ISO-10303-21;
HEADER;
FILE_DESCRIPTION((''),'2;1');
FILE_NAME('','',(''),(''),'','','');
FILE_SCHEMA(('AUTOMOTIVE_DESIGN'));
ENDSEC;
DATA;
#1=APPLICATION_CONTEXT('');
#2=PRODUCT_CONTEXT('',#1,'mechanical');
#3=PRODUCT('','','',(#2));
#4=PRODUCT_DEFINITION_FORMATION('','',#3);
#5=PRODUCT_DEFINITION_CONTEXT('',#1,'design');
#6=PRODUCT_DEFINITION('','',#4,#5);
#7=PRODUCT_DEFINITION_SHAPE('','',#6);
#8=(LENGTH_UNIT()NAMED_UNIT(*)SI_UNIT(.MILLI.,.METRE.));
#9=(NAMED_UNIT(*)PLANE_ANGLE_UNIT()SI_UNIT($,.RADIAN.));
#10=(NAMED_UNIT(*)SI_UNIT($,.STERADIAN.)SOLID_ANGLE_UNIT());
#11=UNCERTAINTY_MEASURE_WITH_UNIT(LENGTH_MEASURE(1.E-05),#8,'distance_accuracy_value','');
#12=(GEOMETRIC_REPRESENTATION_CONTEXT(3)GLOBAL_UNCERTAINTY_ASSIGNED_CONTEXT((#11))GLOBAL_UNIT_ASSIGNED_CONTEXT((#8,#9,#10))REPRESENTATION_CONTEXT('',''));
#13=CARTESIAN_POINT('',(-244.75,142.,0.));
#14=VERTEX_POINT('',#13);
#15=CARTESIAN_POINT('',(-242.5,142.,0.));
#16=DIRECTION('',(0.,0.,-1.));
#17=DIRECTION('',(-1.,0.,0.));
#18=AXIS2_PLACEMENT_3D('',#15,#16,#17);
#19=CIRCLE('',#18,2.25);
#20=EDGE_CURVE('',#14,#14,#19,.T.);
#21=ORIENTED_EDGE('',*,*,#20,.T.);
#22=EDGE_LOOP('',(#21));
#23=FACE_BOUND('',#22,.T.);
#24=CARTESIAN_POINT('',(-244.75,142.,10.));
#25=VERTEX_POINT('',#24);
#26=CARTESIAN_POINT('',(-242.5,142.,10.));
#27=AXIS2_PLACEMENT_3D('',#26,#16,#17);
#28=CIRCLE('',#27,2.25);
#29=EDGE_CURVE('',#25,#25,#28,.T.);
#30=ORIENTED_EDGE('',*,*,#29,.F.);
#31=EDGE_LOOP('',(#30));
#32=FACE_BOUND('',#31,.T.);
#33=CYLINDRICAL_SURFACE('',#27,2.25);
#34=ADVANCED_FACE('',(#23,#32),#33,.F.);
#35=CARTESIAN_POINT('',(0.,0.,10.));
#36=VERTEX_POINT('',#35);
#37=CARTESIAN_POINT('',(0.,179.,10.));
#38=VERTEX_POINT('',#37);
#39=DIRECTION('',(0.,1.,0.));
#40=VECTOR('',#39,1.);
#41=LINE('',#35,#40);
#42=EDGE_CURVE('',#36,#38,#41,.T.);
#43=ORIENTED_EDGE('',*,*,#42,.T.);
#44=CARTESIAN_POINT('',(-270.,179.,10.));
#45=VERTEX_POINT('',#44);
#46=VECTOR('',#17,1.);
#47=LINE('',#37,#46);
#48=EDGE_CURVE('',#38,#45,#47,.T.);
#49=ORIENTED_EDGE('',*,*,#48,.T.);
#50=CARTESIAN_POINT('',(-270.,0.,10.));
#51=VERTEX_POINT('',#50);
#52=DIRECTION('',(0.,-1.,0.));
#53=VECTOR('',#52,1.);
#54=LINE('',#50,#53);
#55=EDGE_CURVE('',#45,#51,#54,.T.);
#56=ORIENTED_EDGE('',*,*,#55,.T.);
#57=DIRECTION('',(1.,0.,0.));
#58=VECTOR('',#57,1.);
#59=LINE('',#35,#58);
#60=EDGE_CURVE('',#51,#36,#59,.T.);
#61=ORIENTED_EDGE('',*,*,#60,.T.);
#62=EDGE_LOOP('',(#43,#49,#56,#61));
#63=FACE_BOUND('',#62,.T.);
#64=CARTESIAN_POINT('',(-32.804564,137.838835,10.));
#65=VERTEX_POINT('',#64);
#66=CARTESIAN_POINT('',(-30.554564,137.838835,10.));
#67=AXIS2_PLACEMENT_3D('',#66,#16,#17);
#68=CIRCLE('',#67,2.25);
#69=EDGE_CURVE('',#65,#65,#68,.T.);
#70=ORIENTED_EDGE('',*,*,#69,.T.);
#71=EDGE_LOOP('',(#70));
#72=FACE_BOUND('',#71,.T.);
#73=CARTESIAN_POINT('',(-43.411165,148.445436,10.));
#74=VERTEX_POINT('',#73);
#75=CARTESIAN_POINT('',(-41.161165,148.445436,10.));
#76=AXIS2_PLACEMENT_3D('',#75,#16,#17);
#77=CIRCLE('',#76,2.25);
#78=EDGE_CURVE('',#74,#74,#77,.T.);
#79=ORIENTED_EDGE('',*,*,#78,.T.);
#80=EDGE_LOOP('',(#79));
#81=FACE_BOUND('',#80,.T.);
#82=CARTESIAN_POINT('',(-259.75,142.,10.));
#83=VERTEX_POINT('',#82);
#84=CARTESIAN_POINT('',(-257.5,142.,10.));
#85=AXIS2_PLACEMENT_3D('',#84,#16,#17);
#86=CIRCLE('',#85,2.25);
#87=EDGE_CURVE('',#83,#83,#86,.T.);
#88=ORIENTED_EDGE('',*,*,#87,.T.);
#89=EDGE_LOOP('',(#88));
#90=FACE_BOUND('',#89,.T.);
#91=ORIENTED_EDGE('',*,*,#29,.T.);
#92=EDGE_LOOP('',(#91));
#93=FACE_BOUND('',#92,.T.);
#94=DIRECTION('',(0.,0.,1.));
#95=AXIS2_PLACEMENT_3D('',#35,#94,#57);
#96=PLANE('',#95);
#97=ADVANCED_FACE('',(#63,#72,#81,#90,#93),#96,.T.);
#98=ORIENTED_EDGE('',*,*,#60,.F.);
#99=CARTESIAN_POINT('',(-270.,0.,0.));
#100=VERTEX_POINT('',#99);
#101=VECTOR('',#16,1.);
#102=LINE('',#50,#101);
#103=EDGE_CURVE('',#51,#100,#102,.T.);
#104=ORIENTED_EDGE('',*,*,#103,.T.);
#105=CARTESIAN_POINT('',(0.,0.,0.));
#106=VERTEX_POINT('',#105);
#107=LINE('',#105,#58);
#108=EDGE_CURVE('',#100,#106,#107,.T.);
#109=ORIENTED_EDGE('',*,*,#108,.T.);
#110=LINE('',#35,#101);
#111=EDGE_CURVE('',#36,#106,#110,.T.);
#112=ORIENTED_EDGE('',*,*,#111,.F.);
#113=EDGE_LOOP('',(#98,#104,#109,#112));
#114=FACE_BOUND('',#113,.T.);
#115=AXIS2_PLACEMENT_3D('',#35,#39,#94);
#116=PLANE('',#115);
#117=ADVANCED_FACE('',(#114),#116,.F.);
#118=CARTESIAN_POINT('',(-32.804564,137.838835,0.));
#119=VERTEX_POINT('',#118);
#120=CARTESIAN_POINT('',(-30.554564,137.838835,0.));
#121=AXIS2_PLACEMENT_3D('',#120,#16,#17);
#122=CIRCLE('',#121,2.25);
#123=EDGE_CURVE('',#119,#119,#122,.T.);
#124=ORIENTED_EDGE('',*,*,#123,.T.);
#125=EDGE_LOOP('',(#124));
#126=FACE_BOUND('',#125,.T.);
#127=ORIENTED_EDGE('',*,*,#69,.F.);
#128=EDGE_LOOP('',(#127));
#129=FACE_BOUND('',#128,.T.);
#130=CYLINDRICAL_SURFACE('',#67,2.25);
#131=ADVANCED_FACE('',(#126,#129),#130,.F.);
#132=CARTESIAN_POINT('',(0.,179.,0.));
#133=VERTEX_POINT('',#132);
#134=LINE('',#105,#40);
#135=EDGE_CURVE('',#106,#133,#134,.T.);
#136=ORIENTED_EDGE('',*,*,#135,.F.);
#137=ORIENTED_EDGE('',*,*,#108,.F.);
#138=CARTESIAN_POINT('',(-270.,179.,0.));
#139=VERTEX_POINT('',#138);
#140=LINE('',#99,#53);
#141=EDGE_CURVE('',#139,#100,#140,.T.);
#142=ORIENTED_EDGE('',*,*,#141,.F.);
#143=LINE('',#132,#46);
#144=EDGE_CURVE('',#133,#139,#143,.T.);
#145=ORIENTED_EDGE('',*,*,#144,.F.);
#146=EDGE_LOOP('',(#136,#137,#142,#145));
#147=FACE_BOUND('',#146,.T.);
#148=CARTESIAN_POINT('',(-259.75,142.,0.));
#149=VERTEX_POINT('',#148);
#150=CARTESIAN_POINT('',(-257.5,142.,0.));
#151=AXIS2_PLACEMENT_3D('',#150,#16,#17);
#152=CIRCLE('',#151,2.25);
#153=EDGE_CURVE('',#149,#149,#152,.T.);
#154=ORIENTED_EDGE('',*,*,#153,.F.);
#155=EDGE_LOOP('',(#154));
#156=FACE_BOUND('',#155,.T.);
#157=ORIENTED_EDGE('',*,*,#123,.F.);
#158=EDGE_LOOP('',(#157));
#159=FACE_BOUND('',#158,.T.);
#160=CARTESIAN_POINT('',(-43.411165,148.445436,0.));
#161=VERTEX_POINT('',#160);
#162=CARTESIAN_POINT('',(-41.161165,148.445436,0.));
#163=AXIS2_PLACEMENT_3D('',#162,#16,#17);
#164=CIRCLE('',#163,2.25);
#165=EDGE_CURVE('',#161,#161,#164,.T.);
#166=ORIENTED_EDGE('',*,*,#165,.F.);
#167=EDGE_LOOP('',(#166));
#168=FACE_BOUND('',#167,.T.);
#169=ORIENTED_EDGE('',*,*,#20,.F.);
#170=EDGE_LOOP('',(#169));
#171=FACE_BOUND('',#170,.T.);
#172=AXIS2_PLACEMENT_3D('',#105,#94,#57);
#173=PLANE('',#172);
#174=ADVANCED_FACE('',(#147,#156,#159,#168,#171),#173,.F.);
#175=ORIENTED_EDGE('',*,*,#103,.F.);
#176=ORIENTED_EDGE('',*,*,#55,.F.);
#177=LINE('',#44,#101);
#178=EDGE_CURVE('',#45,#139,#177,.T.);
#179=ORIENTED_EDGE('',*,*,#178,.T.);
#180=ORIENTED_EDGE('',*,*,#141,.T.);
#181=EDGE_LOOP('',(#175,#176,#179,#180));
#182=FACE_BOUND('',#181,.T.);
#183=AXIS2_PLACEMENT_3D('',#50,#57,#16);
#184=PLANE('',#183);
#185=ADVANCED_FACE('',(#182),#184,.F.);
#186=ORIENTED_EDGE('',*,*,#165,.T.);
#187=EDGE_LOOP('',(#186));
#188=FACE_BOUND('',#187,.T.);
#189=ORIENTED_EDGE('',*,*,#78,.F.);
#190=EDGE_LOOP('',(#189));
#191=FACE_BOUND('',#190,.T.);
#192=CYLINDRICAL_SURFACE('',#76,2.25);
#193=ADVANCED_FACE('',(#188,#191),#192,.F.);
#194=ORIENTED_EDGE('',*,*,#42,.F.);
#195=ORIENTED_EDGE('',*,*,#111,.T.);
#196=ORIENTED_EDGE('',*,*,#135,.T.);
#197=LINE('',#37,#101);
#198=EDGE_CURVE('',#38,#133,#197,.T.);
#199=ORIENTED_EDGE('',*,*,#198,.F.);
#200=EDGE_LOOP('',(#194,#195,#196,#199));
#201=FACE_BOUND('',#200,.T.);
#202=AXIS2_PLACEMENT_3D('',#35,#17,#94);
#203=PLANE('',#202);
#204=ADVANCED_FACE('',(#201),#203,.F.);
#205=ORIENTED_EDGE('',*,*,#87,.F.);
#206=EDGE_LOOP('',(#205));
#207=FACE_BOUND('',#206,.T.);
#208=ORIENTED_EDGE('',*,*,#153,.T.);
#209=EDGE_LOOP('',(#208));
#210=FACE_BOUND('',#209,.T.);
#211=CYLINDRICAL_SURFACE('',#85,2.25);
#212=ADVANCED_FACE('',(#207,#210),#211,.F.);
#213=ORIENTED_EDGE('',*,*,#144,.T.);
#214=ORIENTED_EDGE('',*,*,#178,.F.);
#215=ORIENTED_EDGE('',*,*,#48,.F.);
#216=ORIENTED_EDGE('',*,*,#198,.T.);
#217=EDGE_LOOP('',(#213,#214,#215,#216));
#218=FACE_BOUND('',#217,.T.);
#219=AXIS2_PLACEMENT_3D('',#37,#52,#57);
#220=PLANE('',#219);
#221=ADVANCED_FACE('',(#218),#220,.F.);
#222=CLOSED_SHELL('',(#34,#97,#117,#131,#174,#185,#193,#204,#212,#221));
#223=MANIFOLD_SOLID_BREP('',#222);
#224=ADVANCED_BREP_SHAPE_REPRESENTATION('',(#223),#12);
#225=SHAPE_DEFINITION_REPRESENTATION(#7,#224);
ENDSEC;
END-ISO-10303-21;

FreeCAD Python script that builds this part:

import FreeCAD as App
import Part
import Sketcher
from FreeCAD import Vector


def add_polygon(sketch, points):
    """Adds a closed chain of lines whose ends are joined by coincident constraints."""
    first, n = sketch.GeometryCount, len(points)
    for a, b in zip(points, points[1:] + points[:1]):
        sketch.addGeometry(Part.LineSegment(App.Vector(*a, 0), App.Vector(*b, 0)), False)
    for i in range(n):
        sketch.addConstraint(Sketcher.Constraint("Coincident", first + i, 2, first + (i + 1) % n, 1))

doc = App.newDocument("Part")
body = doc.addObject("PartDesign::Body", "Body")

sketch1 = body.newObject("Sketcher::SketchObject", "Sketch")
sketch1.AttachmentSupport = (doc.getObject("XY_Plane"), [""])
sketch1.MapMode = "FlatFace"
add_polygon(sketch1, [(-270, 179), (-270, 0), (0, 0), (0, 179)])
sketch1.addConstraint([
    Sketcher.Constraint("Vertical", 0),
    Sketcher.Constraint("Horizontal", 1),
    Sketcher.Constraint("Vertical", 2),
    Sketcher.Constraint("Horizontal", 3),
    Sketcher.Constraint("Coincident", 1, 2, -1, 1),
    Sketcher.Constraint("DistanceX", 1, 1, 1, 2, 270.0),
    Sketcher.Constraint("DistanceY", 0, 2, 0, 1, 179.0),
])
pad1 = body.newObject("PartDesign::Pad", "Pad")
pad1.Profile = sketch1
pad1.Length = 10

sketch2 = body.newObject("Sketcher::SketchObject", "Sketch001")
sketch2.AttachmentSupport = (doc.getObject("XY_Plane"), [""])
sketch2.MapMode = "FlatFace"
sketch2.addGeometry([
    Part.Circle(Vector(-41.2, 148.4, 0), Vector(0, 0, 1), 2.2),
    Part.Circle(Vector(-30.6, 137.8, 0), Vector(0, 0, 1), 2.2),
    Part.Circle(Vector(-242.5, 142, 0), Vector(0, 0, 1), 2.2),
    Part.Circle(Vector(-257.5, 142, 0), Vector(0, 0, 1), 2.2),
], False)
sketch2.addConstraint([
    Sketcher.Constraint("Equal", 0, 1),
    Sketcher.Constraint("Equal", 1, 2),
    Sketcher.Constraint("Equal", 2, 3),
    Sketcher.Constraint("Horizontal", 2, 3, 3, 3),
    Sketcher.Constraint("Diameter", 0, 4.5),
    Sketcher.Constraint("DistanceY", -1, 1, 2, 3, 142.0),
    Sketcher.Constraint("DistanceX", 3, 3, 2, 3, 15.0),
    Sketcher.Constraint("DistanceX", 2, 3, -1, 1, 242.5),
    Sketcher.Constraint("DistanceX", 0, 3, 1, 3, 10.606602),
    Sketcher.Constraint("DistanceY", 1, 3, 0, 3, 10.606602),
    Sketcher.Constraint("DistanceX", 0, 3, -1, 1, 41.161165),
    Sketcher.Constraint("DistanceY", -1, 1, 0, 3, 148.445436),
])
pocket1 = body.newObject("PartDesign::Pocket", "Pocket")
pocket1.Profile = sketch2
pocket1.Length = 10
pocket1.Reversed = True

doc.recompute()
